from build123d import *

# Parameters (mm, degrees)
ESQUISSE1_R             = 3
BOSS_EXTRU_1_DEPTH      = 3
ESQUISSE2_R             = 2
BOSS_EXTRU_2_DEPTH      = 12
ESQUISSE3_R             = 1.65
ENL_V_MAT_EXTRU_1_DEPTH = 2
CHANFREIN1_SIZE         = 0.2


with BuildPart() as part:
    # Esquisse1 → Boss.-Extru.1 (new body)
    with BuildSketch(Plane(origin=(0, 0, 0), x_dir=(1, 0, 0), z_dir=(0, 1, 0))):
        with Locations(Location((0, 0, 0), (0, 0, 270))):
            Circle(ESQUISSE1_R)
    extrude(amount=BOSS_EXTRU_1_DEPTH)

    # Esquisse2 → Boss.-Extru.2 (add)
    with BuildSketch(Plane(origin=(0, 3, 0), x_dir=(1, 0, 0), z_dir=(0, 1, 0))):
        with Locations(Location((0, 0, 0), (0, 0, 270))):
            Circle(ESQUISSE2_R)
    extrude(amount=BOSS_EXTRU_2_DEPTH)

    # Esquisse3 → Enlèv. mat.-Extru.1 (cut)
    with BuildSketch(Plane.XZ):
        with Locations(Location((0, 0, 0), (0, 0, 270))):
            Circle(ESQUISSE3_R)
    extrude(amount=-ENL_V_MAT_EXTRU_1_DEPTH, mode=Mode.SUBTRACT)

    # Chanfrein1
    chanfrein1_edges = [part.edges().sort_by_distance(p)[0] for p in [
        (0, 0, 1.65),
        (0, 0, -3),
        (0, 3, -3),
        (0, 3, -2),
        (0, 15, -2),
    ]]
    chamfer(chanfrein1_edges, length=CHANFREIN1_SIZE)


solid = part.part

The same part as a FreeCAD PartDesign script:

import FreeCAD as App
import Part
import Sketcher


def edges_at(feature, points):
    """Names of the edges that pass closest to the given points."""
    edges = feature.Shape.Edges
    near = lambda p: min(range(len(edges)), key=lambda i: edges[i].distToShape(Part.Vertex(*p))[0])
    return sorted({f"Edge{near(p) + 1}" for p in points})

doc = App.newDocument("Part")
body = doc.addObject("PartDesign::Body", "Body")

sketch1 = body.newObject("Sketcher::SketchObject", "Sketch")
sketch1.AttachmentSupport = (doc.getObject("XZ_Plane"), [""])
sketch1.MapMode = "FlatFace"
sketch1.addGeometry(Part.Circle(App.Vector(0, 0, 0), App.Vector(0, 0, 1), 3), False)
sketch1.addConstraint([
    Sketcher.Constraint("Coincident", 0, 3, -1, 1),
    Sketcher.Constraint("Diameter", 0, 6.0),
])
pad1 = body.newObject("PartDesign::Pad", "Pad")
pad1.Profile = sketch1
pad1.Length = 3
pad1.Reversed = True

sketch2 = body.newObject("Sketcher::SketchObject", "Sketch001")
sketch2.AttachmentSupport = (doc.getObject("XZ_Plane"), [""])
sketch2.MapMode = "FlatFace"
sketch2.AttachmentOffset = App.Placement(App.Vector(0, 0, -3), App.Rotation())
sketch2.addGeometry(Part.Circle(App.Vector(0, 0, 0), App.Vector(0, 0, 1), 2), False)
sketch2.addConstraint([
    Sketcher.Constraint("Coincident", 0, 3, -1, 1),
    Sketcher.Constraint("Diameter", 0, 4.0),
])
pad2 = body.newObject("PartDesign::Pad", "Pad001")
pad2.Profile = sketch2
pad2.Length = 12
pad2.Reversed = True

sketch3 = body.newObject("Sketcher::SketchObject", "Sketch002")
sketch3.AttachmentSupport = (doc.getObject("XZ_Plane"), [""])
sketch3.MapMode = "FlatFace"
sketch3.addGeometry(Part.Circle(App.Vector(0, 0, 0), App.Vector(0, 0, 1), 1.65), False)
sketch3.addConstraint([
    Sketcher.Constraint("Coincident", 0, 3, -1, 1),
    Sketcher.Constraint("Diameter", 0, 3.3),
])
pocket1 = body.newObject("PartDesign::Pocket", "Pocket")
pocket1.Profile = sketch3
pocket1.Length = 2
doc.recompute()

chamfer = body.newObject("PartDesign::Chamfer", "Chamfer")
chamfer.Base = (pocket1, edges_at(pocket1, [
    (0, 0, 1.65),
    (0, 0, -3),
    (0, 3, -3),
    (0, 3, -2),
    (0, 15, -2),
]))
chamfer.Size = 0.2

doc.recompute()
